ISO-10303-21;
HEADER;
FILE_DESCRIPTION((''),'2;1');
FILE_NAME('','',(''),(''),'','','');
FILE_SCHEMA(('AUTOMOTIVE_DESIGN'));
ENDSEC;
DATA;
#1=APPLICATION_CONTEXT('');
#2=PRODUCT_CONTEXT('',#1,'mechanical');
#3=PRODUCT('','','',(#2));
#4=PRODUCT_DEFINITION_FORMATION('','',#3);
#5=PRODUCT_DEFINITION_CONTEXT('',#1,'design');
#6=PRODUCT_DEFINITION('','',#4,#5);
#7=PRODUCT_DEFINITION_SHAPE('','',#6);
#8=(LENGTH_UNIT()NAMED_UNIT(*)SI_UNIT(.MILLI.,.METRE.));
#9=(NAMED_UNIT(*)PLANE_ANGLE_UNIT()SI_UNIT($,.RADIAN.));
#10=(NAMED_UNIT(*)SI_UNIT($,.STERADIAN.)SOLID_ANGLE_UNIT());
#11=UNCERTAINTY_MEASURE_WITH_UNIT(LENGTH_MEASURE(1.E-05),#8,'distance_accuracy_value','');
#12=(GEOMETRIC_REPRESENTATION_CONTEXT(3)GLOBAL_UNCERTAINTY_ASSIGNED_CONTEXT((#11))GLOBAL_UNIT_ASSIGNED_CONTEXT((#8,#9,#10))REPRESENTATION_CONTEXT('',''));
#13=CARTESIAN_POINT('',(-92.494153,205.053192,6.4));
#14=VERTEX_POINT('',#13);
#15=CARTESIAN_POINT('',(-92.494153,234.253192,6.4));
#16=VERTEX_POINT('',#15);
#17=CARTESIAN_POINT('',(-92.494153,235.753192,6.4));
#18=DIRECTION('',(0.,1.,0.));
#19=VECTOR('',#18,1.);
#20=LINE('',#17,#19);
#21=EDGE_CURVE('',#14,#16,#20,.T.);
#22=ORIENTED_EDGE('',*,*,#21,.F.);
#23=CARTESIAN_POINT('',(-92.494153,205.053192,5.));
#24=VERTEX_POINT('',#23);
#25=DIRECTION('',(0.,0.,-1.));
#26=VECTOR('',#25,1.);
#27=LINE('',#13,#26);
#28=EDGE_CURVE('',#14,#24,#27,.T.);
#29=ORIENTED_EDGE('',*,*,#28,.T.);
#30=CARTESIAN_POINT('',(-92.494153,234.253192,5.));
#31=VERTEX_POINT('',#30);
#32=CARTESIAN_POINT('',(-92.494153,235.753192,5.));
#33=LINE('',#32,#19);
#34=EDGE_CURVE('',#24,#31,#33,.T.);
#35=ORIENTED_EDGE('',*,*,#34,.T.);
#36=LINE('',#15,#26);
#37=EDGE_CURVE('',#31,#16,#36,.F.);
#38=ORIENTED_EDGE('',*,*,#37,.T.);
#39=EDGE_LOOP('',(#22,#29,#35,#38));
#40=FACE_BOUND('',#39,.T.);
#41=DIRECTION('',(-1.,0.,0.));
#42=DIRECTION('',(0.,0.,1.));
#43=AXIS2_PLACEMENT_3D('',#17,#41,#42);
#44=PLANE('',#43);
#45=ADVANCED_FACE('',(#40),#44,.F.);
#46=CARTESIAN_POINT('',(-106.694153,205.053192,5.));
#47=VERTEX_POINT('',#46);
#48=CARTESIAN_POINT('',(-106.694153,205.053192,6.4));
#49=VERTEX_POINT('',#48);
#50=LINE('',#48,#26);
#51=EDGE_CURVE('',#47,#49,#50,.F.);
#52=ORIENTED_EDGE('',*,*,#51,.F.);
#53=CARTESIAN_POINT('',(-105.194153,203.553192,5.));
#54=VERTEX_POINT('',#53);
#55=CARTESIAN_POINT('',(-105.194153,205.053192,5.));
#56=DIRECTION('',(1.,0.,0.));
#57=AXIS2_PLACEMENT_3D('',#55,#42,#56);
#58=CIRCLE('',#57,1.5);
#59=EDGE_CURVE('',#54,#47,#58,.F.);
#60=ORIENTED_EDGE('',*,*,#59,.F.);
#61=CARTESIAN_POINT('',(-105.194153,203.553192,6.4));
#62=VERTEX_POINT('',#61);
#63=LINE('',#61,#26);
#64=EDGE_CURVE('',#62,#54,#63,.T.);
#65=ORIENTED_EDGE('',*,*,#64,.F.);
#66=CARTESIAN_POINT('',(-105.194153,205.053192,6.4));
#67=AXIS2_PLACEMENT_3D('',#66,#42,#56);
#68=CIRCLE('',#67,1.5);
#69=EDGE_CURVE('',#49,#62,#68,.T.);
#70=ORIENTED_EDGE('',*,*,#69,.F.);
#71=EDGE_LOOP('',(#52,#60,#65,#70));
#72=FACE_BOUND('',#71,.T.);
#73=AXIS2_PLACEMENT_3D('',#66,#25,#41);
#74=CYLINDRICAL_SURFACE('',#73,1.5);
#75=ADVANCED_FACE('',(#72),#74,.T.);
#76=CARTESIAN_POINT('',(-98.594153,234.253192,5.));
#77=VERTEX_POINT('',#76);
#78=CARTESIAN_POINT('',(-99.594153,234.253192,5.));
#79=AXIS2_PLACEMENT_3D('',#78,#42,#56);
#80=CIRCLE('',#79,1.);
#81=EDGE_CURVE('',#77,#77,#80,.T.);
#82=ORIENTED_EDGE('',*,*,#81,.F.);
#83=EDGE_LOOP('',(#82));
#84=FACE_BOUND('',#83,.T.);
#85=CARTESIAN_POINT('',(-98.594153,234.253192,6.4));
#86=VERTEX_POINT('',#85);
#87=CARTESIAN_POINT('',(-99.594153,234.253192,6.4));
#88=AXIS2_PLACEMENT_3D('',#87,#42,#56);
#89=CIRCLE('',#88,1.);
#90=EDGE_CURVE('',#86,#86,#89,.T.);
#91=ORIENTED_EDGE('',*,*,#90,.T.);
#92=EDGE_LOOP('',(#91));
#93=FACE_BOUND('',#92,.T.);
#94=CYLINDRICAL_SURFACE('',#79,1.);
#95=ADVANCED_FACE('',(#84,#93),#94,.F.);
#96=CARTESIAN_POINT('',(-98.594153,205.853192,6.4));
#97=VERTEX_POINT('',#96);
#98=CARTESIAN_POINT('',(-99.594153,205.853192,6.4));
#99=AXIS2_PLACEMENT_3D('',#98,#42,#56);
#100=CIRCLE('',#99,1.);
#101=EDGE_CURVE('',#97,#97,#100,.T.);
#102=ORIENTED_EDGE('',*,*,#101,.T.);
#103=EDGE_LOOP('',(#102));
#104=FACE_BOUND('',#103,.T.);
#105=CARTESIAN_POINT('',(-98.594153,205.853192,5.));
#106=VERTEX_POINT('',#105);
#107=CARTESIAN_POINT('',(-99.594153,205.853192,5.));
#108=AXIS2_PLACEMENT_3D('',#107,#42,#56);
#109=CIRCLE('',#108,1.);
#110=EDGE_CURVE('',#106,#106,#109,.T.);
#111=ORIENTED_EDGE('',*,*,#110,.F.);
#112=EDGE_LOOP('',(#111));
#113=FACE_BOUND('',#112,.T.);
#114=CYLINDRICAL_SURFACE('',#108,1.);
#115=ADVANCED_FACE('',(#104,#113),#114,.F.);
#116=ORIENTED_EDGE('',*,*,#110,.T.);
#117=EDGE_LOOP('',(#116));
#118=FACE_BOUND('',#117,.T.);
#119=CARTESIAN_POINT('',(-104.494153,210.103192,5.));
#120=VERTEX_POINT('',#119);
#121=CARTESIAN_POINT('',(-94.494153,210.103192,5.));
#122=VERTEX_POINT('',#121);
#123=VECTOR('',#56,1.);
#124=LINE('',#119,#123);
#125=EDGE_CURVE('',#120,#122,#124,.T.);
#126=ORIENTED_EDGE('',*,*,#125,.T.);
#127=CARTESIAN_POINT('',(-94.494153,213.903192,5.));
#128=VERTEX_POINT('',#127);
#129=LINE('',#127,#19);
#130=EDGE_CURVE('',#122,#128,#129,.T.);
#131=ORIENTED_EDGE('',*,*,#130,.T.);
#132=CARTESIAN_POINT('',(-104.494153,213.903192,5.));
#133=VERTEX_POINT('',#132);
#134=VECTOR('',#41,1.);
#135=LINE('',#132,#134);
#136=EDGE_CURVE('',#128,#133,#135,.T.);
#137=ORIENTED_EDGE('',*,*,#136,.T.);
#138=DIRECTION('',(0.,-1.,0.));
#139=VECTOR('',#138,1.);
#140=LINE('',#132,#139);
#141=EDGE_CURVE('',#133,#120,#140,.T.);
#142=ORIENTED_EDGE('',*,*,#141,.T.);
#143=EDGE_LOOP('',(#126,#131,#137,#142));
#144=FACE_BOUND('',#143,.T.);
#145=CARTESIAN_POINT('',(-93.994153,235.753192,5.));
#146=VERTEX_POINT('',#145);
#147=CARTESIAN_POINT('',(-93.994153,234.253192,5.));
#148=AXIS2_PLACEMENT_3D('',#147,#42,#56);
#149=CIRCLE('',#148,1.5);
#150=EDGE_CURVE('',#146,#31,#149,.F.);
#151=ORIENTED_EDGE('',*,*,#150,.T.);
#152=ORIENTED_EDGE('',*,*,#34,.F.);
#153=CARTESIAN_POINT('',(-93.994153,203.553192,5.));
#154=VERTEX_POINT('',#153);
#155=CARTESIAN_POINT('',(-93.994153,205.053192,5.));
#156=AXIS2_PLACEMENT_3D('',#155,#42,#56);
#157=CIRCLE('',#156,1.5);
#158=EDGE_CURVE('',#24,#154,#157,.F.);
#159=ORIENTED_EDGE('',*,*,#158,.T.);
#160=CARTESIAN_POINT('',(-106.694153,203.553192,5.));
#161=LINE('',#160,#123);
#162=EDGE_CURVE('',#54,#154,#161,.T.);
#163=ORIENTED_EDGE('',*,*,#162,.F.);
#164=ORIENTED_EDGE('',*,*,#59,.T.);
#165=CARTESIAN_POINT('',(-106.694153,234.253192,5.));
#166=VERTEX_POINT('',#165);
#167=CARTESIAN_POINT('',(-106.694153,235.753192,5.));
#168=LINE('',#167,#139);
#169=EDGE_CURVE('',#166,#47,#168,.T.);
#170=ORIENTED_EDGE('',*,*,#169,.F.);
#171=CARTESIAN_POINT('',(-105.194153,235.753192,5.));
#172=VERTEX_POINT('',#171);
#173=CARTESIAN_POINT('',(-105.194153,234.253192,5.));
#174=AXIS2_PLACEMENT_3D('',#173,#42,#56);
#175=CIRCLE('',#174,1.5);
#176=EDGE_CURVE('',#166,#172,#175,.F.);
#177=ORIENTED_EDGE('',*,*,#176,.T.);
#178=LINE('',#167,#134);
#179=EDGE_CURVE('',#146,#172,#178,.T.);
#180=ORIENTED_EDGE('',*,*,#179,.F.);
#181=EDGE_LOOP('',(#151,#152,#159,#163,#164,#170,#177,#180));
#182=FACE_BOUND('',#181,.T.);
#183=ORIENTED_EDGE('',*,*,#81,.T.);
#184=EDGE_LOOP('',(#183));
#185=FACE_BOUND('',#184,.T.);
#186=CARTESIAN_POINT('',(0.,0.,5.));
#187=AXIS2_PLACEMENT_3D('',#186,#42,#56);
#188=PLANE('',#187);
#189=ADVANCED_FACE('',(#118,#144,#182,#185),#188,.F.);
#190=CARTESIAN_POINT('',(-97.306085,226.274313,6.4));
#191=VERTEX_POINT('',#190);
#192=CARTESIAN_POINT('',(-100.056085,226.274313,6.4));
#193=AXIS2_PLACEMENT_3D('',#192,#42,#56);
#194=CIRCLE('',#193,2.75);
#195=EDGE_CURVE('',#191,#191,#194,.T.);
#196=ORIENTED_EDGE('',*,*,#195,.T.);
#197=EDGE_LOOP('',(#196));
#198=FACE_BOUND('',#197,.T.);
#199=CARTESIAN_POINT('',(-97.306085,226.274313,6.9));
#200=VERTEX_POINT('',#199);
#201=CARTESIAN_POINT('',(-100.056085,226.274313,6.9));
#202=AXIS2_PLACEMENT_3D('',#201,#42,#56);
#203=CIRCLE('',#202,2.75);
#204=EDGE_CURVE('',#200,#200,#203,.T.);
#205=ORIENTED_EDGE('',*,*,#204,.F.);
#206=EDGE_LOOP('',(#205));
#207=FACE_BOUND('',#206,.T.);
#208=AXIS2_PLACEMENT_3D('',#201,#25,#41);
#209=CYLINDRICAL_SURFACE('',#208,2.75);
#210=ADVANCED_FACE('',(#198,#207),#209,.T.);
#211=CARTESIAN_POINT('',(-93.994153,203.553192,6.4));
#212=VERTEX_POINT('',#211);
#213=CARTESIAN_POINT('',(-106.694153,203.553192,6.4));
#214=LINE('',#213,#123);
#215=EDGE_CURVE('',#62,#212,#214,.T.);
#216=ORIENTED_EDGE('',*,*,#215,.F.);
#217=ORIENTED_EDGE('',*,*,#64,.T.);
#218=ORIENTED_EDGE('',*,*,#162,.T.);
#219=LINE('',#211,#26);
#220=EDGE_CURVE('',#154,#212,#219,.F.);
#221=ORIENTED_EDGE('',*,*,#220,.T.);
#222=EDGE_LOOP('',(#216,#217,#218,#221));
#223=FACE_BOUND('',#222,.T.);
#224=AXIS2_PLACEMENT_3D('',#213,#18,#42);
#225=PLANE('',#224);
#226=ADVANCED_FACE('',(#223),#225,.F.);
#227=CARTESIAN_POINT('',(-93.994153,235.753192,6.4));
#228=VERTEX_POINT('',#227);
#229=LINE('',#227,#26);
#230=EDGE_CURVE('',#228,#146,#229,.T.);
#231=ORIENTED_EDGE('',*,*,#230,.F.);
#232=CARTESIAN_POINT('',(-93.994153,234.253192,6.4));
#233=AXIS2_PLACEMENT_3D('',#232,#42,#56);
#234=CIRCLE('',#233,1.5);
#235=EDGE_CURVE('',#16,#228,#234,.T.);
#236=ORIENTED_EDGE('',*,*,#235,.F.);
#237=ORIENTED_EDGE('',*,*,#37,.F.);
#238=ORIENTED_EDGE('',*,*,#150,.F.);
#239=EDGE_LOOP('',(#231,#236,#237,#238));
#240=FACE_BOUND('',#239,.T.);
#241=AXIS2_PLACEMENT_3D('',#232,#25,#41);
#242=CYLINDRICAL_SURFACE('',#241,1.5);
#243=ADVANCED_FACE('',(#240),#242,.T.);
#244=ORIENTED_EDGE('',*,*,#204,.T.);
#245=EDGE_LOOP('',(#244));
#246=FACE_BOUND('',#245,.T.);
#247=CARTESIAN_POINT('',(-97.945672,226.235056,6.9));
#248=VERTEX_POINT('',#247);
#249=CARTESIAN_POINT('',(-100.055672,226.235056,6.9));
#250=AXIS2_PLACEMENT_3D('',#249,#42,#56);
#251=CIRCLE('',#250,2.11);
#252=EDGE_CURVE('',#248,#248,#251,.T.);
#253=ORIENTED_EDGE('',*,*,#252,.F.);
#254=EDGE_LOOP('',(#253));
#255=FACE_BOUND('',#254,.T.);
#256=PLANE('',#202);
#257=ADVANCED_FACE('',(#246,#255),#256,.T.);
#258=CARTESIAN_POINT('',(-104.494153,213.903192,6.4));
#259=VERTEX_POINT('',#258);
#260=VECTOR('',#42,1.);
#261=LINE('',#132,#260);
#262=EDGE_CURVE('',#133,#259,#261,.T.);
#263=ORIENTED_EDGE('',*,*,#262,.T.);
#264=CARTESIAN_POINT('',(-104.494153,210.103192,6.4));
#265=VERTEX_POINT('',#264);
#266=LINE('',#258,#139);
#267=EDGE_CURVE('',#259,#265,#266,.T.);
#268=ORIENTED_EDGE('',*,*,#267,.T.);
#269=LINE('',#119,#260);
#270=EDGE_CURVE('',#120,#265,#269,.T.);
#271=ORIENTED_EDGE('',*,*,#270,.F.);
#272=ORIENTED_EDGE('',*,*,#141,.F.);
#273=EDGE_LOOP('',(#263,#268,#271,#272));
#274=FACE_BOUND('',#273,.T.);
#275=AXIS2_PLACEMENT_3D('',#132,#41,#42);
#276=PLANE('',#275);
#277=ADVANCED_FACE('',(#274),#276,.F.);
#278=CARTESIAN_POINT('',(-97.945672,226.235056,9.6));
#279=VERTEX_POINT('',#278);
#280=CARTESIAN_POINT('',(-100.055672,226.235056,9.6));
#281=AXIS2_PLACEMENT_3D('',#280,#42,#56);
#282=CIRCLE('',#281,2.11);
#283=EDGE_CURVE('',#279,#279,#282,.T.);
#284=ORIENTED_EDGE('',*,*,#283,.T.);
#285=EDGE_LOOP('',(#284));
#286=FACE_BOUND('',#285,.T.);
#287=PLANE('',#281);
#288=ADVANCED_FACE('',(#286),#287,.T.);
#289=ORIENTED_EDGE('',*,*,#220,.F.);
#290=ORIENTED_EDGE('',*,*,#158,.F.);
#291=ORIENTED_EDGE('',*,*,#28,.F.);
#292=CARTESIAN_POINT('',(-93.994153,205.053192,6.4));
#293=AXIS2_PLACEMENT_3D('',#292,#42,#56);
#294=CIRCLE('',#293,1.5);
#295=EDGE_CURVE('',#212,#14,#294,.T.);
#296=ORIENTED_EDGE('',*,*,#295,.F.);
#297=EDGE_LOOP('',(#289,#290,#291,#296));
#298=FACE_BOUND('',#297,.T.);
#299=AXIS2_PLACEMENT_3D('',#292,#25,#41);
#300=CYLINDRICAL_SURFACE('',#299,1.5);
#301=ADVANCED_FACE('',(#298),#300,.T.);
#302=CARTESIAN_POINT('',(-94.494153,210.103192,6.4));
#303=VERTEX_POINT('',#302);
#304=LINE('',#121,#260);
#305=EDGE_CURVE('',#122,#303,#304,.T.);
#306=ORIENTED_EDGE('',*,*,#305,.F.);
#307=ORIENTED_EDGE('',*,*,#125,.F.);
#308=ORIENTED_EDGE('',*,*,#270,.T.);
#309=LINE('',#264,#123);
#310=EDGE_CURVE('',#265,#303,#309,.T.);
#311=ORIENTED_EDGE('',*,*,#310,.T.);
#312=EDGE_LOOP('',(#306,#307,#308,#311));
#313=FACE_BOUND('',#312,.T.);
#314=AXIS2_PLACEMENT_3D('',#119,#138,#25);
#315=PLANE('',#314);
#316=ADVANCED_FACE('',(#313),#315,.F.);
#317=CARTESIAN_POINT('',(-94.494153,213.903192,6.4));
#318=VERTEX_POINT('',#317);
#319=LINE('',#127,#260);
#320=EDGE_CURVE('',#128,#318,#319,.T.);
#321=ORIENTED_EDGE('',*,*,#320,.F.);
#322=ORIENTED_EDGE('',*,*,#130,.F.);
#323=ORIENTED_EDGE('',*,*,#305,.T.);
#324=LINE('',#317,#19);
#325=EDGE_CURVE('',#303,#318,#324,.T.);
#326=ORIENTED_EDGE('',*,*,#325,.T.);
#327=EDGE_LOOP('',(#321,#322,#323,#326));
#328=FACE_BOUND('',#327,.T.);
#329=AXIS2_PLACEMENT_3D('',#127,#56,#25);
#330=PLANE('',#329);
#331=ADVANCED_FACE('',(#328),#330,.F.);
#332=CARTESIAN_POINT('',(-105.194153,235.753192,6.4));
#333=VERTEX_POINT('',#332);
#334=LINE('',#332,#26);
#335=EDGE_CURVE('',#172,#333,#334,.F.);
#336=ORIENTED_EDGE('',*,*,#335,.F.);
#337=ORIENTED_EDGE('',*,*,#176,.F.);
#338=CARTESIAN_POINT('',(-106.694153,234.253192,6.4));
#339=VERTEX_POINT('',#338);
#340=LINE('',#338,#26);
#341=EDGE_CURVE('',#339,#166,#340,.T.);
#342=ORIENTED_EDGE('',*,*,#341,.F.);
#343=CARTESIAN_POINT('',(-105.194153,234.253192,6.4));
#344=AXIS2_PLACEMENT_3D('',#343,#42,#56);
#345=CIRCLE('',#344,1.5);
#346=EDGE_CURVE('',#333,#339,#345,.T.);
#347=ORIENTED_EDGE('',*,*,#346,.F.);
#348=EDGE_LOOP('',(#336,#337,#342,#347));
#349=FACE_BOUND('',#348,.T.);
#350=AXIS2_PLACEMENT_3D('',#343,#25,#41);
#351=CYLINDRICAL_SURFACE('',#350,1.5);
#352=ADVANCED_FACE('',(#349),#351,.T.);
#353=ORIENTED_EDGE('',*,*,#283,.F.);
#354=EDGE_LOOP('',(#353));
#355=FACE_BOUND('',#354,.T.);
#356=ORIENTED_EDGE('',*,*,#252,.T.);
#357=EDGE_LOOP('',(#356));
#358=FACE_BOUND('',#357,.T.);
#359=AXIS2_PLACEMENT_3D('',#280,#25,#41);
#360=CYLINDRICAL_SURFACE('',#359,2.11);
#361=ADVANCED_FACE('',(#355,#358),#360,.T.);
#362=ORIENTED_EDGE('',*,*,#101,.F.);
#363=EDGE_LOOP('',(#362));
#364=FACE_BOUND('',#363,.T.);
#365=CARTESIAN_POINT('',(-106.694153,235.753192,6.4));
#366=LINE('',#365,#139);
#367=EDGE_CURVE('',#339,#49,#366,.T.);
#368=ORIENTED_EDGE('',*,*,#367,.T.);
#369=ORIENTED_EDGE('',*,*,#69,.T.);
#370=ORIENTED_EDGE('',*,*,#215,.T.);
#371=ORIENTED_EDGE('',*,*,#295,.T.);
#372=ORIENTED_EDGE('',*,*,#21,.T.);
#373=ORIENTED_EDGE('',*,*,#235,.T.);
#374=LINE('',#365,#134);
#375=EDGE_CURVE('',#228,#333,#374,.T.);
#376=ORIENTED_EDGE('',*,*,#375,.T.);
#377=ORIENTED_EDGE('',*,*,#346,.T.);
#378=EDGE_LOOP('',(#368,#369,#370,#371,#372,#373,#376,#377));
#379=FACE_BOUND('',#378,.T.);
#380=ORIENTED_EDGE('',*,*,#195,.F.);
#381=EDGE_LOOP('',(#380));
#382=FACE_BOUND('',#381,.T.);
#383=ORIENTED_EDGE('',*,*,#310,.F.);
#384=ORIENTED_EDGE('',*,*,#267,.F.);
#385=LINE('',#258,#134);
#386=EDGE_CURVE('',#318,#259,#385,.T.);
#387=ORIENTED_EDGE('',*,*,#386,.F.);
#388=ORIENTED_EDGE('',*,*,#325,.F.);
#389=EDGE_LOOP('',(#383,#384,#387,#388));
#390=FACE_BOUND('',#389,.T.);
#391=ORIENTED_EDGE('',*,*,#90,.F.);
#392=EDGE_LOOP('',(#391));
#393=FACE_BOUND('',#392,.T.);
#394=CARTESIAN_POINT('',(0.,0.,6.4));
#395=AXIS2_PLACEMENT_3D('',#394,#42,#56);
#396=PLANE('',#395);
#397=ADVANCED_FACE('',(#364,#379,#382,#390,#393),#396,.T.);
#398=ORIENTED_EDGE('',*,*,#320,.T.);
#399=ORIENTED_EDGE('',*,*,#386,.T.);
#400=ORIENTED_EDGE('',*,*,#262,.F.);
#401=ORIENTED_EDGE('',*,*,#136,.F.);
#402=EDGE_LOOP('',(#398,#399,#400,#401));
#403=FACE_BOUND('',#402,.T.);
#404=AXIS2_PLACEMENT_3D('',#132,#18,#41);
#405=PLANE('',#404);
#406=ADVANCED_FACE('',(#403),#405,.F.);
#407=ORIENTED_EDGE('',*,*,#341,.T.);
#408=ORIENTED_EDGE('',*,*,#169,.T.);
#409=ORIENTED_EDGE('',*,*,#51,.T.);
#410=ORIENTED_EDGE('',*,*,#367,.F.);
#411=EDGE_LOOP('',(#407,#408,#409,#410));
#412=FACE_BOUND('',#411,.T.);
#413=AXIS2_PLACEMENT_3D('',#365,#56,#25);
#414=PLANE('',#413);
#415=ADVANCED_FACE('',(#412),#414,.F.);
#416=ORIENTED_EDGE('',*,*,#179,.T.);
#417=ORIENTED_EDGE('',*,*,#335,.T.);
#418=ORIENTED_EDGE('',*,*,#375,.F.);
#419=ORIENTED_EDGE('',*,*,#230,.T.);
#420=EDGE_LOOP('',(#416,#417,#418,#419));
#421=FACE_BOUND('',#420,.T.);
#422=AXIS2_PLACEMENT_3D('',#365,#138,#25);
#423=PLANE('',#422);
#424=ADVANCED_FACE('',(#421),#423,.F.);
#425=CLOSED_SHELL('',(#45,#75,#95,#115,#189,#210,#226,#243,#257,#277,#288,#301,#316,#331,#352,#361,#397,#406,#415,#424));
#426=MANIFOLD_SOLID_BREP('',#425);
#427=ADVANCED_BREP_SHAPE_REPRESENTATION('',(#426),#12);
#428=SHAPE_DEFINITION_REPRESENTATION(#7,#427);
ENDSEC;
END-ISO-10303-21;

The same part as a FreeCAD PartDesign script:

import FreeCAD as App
import Part
import Sketcher

V = App.Vector


def edges_at(feature, points):
    """Names of the edges that pass closest to the given points."""
    edges = feature.Shape.Edges
    near = lambda p: min(range(len(edges)), key=lambda i: edges[i].distToShape(Part.Vertex(*p))[0])
    return sorted({f"Edge{near(p) + 1}" for p in points})

doc = App.newDocument("Part")
body = doc.addObject("PartDesign::Body", "Body")

# Sketch on XY plane
sketch1 = body.newObject("Sketcher::SketchObject", "Sketch")
sketch1.AttachmentSupport = (doc.getObject("XY_Plane"), [""])
sketch1.MapMode = "FlatFace"
sketch1.AttachmentOffset = App.Placement(V(0, 0, 5), App.Rotation())
sketch1.addGeometry(Part.LineSegment(V(-107, 236, 0), V(-107, 204, 0)), False)
sketch1.addGeometry(Part.LineSegment(V(-107, 204, 0), V(-92, 204, 0)), False)
sketch1.addGeometry(Part.LineSegment(V(-92, 204, 0), V(-92, 236, 0)), False)
sketch1.addGeometry(Part.LineSegment(V(-92, 236, 0), V(-107, 236, 0)), False)
sketch1.addConstraint(Sketcher.Constraint("Coincident", 0, 2, 1, 1))
sketch1.addConstraint(Sketcher.Constraint("Coincident", 1, 2, 2, 1))
sketch1.addConstraint(Sketcher.Constraint("Coincident", 2, 2, 3, 1))
sketch1.addConstraint(Sketcher.Constraint("Coincident", 3, 2, 0, 1))
sketch1.addConstraint(Sketcher.Constraint("Vertical", 0))
sketch1.addConstraint(Sketcher.Constraint("Horizontal", 1))
sketch1.addConstraint(Sketcher.Constraint("Vertical", 2))
sketch1.addConstraint(Sketcher.Constraint("Horizontal", 3))
sketch1.addConstraint(Sketcher.Constraint("DistanceX", 1, 1, 1, 2, 14.2))
sketch1.addConstraint(Sketcher.Constraint("DistanceY", 0, 2, 0, 1, 32.2))
sketch1.addConstraint(Sketcher.Constraint("DistanceX", 0, 2, -1, 1, 106.694153))
sketch1.addConstraint(Sketcher.Constraint("DistanceY", -1, 1, 0, 2, 203.553192))
pad1 = body.newObject("PartDesign::Pad", "Pad")
pad1.Profile = sketch1
pad1.Length = 1.4

# Sketch on XY plane
sketch2 = body.newObject("Sketcher::SketchObject", "Sketch001")
sketch2.AttachmentSupport = (doc.getObject("XY_Plane"), [""])
sketch2.MapMode = "FlatFace"
sketch2.AttachmentOffset = App.Placement(V(0, 0, 6.4), App.Rotation())
sketch2.addGeometry(Part.Circle(V(-99.6, 234.3, 0), V(0, 0, 1), 1), False)
sketch2.addGeometry(Part.Circle(V(-99.6, 205.9, 0), V(0, 0, 1), 1), False)
sketch2.addGeometry(Part.LineSegment(V(-104.5, 213.9, 0), V(-104.5, 210.1, 0)), False)
sketch2.addGeometry(Part.LineSegment(V(-104.5, 210.1, 0), V(-94.5, 210.1, 0)), False)
sketch2.addGeometry(Part.LineSegment(V(-94.5, 210.1, 0), V(-94.5, 213.9, 0)), False)
sketch2.addGeometry(Part.LineSegment(V(-94.5, 213.9, 0), V(-104.5, 213.9, 0)), False)
sketch2.addConstraint(Sketcher.Constraint("Coincident", 2, 2, 3, 1))
sketch2.addConstraint(Sketcher.Constraint("Coincident", 3, 2, 4, 1))
sketch2.addConstraint(Sketcher.Constraint("Coincident", 4, 2, 5, 1))
sketch2.addConstraint(Sketcher.Constraint("Coincident", 5, 2, 2, 1))
sketch2.addConstraint(Sketcher.Constraint("Vertical", 2))
sketch2.addConstraint(Sketcher.Constraint("Horizontal", 3))
sketch2.addConstraint(Sketcher.Constraint("Vertical", 4))
sketch2.addConstraint(Sketcher.Constraint("Horizontal", 5))
sketch2.addConstraint(Sketcher.Constraint("Equal", 0, 1))
sketch2.addConstraint(Sketcher.Constraint("Vertical", 0, 3, 1, 3))
sketch2.addConstraint(Sketcher.Constraint("Diameter", 0, 2.0))
sketch2.addConstraint(Sketcher.Constraint("DistanceX", 3, 1, 3, 2, 10.0))
sketch2.addConstraint(Sketcher.Constraint("DistanceY", 2, 2, 2, 1, 3.8))
sketch2.addConstraint(Sketcher.Constraint("DistanceY", 1, 3, 0, 3, 28.4))
sketch2.addConstraint(Sketcher.Constraint("DistanceX", 2, 2, 1, 3, 4.9))
sketch2.addConstraint(Sketcher.Constraint("DistanceY", 1, 3, 2, 2, 4.25))
sketch2.addConstraint(Sketcher.Constraint("DistanceX", 0, 3, -1, 1, 99.594153))
sketch2.addConstraint(Sketcher.Constraint("DistanceY", -1, 1, 0, 3, 234.253192))
pocket1 = body.newObject("PartDesign::Pocket", "Pocket")
pocket1.Profile = sketch2
pocket1.Length = 1.4

# Sketch on XY plane
sketch3 = body.newObject("Sketcher::SketchObject", "Sketch002")
sketch3.AttachmentSupport = (doc.getObject("XY_Plane"), [""])
sketch3.MapMode = "FlatFace"
sketch3.AttachmentOffset = App.Placement(V(0, 0, 6.4), App.Rotation())
sketch3.addGeometry(Part.Circle(V(-100.1, 226.2, 0), V(0, 0, 1), 2.1), False)
sketch3.addConstraint(Sketcher.Constraint("Diameter", 0, 4.22))
sketch3.addConstraint(Sketcher.Constraint("DistanceX", 0, 3, -1, 1, 100.055672))
sketch3.addConstraint(Sketcher.Constraint("DistanceY", -1, 1, 0, 3, 226.235056))
pad2 = body.newObject("PartDesign::Pad", "Pad001")
pad2.Profile = sketch3
pad2.Length = 3.2
doc.recompute()

fillet = body.newObject("PartDesign::Fillet", "Fillet")
fillet.Base = (pad2, edges_at(pad2, [
    (-106.694, 235.753, 5.7),
    (-92.494, 235.753, 5.7),
    (-92.494, 203.553, 5.7),
    (-106.694, 203.553, 5.7),
]))
fillet.Radius = 1.5

# Sketch on XY plane
sketch4 = body.newObject("Sketcher::SketchObject", "Sketch003")
sketch4.AttachmentSupport = (doc.getObject("XY_Plane"), [""])
sketch4.MapMode = "FlatFace"
sketch4.AttachmentOffset = App.Placement(V(0, 0, 6.4), App.Rotation())
sketch4.addGeometry(Part.Circle(V(-100.1, 226.3, 0), V(0, 0, 1), 2.8), False)
sketch4.addConstraint(Sketcher.Constraint("Diameter", 0, 5.5))
sketch4.addConstraint(Sketcher.Constraint("DistanceX", 0, 3, -1, 1, 100.056085))
sketch4.addConstraint(Sketcher.Constraint("DistanceY", -1, 1, 0, 3, 226.274313))
pad3 = body.newObject("PartDesign::Pad", "Pad002")
pad3.Profile = sketch4
pad3.Length = 0.5

doc.recompute()
